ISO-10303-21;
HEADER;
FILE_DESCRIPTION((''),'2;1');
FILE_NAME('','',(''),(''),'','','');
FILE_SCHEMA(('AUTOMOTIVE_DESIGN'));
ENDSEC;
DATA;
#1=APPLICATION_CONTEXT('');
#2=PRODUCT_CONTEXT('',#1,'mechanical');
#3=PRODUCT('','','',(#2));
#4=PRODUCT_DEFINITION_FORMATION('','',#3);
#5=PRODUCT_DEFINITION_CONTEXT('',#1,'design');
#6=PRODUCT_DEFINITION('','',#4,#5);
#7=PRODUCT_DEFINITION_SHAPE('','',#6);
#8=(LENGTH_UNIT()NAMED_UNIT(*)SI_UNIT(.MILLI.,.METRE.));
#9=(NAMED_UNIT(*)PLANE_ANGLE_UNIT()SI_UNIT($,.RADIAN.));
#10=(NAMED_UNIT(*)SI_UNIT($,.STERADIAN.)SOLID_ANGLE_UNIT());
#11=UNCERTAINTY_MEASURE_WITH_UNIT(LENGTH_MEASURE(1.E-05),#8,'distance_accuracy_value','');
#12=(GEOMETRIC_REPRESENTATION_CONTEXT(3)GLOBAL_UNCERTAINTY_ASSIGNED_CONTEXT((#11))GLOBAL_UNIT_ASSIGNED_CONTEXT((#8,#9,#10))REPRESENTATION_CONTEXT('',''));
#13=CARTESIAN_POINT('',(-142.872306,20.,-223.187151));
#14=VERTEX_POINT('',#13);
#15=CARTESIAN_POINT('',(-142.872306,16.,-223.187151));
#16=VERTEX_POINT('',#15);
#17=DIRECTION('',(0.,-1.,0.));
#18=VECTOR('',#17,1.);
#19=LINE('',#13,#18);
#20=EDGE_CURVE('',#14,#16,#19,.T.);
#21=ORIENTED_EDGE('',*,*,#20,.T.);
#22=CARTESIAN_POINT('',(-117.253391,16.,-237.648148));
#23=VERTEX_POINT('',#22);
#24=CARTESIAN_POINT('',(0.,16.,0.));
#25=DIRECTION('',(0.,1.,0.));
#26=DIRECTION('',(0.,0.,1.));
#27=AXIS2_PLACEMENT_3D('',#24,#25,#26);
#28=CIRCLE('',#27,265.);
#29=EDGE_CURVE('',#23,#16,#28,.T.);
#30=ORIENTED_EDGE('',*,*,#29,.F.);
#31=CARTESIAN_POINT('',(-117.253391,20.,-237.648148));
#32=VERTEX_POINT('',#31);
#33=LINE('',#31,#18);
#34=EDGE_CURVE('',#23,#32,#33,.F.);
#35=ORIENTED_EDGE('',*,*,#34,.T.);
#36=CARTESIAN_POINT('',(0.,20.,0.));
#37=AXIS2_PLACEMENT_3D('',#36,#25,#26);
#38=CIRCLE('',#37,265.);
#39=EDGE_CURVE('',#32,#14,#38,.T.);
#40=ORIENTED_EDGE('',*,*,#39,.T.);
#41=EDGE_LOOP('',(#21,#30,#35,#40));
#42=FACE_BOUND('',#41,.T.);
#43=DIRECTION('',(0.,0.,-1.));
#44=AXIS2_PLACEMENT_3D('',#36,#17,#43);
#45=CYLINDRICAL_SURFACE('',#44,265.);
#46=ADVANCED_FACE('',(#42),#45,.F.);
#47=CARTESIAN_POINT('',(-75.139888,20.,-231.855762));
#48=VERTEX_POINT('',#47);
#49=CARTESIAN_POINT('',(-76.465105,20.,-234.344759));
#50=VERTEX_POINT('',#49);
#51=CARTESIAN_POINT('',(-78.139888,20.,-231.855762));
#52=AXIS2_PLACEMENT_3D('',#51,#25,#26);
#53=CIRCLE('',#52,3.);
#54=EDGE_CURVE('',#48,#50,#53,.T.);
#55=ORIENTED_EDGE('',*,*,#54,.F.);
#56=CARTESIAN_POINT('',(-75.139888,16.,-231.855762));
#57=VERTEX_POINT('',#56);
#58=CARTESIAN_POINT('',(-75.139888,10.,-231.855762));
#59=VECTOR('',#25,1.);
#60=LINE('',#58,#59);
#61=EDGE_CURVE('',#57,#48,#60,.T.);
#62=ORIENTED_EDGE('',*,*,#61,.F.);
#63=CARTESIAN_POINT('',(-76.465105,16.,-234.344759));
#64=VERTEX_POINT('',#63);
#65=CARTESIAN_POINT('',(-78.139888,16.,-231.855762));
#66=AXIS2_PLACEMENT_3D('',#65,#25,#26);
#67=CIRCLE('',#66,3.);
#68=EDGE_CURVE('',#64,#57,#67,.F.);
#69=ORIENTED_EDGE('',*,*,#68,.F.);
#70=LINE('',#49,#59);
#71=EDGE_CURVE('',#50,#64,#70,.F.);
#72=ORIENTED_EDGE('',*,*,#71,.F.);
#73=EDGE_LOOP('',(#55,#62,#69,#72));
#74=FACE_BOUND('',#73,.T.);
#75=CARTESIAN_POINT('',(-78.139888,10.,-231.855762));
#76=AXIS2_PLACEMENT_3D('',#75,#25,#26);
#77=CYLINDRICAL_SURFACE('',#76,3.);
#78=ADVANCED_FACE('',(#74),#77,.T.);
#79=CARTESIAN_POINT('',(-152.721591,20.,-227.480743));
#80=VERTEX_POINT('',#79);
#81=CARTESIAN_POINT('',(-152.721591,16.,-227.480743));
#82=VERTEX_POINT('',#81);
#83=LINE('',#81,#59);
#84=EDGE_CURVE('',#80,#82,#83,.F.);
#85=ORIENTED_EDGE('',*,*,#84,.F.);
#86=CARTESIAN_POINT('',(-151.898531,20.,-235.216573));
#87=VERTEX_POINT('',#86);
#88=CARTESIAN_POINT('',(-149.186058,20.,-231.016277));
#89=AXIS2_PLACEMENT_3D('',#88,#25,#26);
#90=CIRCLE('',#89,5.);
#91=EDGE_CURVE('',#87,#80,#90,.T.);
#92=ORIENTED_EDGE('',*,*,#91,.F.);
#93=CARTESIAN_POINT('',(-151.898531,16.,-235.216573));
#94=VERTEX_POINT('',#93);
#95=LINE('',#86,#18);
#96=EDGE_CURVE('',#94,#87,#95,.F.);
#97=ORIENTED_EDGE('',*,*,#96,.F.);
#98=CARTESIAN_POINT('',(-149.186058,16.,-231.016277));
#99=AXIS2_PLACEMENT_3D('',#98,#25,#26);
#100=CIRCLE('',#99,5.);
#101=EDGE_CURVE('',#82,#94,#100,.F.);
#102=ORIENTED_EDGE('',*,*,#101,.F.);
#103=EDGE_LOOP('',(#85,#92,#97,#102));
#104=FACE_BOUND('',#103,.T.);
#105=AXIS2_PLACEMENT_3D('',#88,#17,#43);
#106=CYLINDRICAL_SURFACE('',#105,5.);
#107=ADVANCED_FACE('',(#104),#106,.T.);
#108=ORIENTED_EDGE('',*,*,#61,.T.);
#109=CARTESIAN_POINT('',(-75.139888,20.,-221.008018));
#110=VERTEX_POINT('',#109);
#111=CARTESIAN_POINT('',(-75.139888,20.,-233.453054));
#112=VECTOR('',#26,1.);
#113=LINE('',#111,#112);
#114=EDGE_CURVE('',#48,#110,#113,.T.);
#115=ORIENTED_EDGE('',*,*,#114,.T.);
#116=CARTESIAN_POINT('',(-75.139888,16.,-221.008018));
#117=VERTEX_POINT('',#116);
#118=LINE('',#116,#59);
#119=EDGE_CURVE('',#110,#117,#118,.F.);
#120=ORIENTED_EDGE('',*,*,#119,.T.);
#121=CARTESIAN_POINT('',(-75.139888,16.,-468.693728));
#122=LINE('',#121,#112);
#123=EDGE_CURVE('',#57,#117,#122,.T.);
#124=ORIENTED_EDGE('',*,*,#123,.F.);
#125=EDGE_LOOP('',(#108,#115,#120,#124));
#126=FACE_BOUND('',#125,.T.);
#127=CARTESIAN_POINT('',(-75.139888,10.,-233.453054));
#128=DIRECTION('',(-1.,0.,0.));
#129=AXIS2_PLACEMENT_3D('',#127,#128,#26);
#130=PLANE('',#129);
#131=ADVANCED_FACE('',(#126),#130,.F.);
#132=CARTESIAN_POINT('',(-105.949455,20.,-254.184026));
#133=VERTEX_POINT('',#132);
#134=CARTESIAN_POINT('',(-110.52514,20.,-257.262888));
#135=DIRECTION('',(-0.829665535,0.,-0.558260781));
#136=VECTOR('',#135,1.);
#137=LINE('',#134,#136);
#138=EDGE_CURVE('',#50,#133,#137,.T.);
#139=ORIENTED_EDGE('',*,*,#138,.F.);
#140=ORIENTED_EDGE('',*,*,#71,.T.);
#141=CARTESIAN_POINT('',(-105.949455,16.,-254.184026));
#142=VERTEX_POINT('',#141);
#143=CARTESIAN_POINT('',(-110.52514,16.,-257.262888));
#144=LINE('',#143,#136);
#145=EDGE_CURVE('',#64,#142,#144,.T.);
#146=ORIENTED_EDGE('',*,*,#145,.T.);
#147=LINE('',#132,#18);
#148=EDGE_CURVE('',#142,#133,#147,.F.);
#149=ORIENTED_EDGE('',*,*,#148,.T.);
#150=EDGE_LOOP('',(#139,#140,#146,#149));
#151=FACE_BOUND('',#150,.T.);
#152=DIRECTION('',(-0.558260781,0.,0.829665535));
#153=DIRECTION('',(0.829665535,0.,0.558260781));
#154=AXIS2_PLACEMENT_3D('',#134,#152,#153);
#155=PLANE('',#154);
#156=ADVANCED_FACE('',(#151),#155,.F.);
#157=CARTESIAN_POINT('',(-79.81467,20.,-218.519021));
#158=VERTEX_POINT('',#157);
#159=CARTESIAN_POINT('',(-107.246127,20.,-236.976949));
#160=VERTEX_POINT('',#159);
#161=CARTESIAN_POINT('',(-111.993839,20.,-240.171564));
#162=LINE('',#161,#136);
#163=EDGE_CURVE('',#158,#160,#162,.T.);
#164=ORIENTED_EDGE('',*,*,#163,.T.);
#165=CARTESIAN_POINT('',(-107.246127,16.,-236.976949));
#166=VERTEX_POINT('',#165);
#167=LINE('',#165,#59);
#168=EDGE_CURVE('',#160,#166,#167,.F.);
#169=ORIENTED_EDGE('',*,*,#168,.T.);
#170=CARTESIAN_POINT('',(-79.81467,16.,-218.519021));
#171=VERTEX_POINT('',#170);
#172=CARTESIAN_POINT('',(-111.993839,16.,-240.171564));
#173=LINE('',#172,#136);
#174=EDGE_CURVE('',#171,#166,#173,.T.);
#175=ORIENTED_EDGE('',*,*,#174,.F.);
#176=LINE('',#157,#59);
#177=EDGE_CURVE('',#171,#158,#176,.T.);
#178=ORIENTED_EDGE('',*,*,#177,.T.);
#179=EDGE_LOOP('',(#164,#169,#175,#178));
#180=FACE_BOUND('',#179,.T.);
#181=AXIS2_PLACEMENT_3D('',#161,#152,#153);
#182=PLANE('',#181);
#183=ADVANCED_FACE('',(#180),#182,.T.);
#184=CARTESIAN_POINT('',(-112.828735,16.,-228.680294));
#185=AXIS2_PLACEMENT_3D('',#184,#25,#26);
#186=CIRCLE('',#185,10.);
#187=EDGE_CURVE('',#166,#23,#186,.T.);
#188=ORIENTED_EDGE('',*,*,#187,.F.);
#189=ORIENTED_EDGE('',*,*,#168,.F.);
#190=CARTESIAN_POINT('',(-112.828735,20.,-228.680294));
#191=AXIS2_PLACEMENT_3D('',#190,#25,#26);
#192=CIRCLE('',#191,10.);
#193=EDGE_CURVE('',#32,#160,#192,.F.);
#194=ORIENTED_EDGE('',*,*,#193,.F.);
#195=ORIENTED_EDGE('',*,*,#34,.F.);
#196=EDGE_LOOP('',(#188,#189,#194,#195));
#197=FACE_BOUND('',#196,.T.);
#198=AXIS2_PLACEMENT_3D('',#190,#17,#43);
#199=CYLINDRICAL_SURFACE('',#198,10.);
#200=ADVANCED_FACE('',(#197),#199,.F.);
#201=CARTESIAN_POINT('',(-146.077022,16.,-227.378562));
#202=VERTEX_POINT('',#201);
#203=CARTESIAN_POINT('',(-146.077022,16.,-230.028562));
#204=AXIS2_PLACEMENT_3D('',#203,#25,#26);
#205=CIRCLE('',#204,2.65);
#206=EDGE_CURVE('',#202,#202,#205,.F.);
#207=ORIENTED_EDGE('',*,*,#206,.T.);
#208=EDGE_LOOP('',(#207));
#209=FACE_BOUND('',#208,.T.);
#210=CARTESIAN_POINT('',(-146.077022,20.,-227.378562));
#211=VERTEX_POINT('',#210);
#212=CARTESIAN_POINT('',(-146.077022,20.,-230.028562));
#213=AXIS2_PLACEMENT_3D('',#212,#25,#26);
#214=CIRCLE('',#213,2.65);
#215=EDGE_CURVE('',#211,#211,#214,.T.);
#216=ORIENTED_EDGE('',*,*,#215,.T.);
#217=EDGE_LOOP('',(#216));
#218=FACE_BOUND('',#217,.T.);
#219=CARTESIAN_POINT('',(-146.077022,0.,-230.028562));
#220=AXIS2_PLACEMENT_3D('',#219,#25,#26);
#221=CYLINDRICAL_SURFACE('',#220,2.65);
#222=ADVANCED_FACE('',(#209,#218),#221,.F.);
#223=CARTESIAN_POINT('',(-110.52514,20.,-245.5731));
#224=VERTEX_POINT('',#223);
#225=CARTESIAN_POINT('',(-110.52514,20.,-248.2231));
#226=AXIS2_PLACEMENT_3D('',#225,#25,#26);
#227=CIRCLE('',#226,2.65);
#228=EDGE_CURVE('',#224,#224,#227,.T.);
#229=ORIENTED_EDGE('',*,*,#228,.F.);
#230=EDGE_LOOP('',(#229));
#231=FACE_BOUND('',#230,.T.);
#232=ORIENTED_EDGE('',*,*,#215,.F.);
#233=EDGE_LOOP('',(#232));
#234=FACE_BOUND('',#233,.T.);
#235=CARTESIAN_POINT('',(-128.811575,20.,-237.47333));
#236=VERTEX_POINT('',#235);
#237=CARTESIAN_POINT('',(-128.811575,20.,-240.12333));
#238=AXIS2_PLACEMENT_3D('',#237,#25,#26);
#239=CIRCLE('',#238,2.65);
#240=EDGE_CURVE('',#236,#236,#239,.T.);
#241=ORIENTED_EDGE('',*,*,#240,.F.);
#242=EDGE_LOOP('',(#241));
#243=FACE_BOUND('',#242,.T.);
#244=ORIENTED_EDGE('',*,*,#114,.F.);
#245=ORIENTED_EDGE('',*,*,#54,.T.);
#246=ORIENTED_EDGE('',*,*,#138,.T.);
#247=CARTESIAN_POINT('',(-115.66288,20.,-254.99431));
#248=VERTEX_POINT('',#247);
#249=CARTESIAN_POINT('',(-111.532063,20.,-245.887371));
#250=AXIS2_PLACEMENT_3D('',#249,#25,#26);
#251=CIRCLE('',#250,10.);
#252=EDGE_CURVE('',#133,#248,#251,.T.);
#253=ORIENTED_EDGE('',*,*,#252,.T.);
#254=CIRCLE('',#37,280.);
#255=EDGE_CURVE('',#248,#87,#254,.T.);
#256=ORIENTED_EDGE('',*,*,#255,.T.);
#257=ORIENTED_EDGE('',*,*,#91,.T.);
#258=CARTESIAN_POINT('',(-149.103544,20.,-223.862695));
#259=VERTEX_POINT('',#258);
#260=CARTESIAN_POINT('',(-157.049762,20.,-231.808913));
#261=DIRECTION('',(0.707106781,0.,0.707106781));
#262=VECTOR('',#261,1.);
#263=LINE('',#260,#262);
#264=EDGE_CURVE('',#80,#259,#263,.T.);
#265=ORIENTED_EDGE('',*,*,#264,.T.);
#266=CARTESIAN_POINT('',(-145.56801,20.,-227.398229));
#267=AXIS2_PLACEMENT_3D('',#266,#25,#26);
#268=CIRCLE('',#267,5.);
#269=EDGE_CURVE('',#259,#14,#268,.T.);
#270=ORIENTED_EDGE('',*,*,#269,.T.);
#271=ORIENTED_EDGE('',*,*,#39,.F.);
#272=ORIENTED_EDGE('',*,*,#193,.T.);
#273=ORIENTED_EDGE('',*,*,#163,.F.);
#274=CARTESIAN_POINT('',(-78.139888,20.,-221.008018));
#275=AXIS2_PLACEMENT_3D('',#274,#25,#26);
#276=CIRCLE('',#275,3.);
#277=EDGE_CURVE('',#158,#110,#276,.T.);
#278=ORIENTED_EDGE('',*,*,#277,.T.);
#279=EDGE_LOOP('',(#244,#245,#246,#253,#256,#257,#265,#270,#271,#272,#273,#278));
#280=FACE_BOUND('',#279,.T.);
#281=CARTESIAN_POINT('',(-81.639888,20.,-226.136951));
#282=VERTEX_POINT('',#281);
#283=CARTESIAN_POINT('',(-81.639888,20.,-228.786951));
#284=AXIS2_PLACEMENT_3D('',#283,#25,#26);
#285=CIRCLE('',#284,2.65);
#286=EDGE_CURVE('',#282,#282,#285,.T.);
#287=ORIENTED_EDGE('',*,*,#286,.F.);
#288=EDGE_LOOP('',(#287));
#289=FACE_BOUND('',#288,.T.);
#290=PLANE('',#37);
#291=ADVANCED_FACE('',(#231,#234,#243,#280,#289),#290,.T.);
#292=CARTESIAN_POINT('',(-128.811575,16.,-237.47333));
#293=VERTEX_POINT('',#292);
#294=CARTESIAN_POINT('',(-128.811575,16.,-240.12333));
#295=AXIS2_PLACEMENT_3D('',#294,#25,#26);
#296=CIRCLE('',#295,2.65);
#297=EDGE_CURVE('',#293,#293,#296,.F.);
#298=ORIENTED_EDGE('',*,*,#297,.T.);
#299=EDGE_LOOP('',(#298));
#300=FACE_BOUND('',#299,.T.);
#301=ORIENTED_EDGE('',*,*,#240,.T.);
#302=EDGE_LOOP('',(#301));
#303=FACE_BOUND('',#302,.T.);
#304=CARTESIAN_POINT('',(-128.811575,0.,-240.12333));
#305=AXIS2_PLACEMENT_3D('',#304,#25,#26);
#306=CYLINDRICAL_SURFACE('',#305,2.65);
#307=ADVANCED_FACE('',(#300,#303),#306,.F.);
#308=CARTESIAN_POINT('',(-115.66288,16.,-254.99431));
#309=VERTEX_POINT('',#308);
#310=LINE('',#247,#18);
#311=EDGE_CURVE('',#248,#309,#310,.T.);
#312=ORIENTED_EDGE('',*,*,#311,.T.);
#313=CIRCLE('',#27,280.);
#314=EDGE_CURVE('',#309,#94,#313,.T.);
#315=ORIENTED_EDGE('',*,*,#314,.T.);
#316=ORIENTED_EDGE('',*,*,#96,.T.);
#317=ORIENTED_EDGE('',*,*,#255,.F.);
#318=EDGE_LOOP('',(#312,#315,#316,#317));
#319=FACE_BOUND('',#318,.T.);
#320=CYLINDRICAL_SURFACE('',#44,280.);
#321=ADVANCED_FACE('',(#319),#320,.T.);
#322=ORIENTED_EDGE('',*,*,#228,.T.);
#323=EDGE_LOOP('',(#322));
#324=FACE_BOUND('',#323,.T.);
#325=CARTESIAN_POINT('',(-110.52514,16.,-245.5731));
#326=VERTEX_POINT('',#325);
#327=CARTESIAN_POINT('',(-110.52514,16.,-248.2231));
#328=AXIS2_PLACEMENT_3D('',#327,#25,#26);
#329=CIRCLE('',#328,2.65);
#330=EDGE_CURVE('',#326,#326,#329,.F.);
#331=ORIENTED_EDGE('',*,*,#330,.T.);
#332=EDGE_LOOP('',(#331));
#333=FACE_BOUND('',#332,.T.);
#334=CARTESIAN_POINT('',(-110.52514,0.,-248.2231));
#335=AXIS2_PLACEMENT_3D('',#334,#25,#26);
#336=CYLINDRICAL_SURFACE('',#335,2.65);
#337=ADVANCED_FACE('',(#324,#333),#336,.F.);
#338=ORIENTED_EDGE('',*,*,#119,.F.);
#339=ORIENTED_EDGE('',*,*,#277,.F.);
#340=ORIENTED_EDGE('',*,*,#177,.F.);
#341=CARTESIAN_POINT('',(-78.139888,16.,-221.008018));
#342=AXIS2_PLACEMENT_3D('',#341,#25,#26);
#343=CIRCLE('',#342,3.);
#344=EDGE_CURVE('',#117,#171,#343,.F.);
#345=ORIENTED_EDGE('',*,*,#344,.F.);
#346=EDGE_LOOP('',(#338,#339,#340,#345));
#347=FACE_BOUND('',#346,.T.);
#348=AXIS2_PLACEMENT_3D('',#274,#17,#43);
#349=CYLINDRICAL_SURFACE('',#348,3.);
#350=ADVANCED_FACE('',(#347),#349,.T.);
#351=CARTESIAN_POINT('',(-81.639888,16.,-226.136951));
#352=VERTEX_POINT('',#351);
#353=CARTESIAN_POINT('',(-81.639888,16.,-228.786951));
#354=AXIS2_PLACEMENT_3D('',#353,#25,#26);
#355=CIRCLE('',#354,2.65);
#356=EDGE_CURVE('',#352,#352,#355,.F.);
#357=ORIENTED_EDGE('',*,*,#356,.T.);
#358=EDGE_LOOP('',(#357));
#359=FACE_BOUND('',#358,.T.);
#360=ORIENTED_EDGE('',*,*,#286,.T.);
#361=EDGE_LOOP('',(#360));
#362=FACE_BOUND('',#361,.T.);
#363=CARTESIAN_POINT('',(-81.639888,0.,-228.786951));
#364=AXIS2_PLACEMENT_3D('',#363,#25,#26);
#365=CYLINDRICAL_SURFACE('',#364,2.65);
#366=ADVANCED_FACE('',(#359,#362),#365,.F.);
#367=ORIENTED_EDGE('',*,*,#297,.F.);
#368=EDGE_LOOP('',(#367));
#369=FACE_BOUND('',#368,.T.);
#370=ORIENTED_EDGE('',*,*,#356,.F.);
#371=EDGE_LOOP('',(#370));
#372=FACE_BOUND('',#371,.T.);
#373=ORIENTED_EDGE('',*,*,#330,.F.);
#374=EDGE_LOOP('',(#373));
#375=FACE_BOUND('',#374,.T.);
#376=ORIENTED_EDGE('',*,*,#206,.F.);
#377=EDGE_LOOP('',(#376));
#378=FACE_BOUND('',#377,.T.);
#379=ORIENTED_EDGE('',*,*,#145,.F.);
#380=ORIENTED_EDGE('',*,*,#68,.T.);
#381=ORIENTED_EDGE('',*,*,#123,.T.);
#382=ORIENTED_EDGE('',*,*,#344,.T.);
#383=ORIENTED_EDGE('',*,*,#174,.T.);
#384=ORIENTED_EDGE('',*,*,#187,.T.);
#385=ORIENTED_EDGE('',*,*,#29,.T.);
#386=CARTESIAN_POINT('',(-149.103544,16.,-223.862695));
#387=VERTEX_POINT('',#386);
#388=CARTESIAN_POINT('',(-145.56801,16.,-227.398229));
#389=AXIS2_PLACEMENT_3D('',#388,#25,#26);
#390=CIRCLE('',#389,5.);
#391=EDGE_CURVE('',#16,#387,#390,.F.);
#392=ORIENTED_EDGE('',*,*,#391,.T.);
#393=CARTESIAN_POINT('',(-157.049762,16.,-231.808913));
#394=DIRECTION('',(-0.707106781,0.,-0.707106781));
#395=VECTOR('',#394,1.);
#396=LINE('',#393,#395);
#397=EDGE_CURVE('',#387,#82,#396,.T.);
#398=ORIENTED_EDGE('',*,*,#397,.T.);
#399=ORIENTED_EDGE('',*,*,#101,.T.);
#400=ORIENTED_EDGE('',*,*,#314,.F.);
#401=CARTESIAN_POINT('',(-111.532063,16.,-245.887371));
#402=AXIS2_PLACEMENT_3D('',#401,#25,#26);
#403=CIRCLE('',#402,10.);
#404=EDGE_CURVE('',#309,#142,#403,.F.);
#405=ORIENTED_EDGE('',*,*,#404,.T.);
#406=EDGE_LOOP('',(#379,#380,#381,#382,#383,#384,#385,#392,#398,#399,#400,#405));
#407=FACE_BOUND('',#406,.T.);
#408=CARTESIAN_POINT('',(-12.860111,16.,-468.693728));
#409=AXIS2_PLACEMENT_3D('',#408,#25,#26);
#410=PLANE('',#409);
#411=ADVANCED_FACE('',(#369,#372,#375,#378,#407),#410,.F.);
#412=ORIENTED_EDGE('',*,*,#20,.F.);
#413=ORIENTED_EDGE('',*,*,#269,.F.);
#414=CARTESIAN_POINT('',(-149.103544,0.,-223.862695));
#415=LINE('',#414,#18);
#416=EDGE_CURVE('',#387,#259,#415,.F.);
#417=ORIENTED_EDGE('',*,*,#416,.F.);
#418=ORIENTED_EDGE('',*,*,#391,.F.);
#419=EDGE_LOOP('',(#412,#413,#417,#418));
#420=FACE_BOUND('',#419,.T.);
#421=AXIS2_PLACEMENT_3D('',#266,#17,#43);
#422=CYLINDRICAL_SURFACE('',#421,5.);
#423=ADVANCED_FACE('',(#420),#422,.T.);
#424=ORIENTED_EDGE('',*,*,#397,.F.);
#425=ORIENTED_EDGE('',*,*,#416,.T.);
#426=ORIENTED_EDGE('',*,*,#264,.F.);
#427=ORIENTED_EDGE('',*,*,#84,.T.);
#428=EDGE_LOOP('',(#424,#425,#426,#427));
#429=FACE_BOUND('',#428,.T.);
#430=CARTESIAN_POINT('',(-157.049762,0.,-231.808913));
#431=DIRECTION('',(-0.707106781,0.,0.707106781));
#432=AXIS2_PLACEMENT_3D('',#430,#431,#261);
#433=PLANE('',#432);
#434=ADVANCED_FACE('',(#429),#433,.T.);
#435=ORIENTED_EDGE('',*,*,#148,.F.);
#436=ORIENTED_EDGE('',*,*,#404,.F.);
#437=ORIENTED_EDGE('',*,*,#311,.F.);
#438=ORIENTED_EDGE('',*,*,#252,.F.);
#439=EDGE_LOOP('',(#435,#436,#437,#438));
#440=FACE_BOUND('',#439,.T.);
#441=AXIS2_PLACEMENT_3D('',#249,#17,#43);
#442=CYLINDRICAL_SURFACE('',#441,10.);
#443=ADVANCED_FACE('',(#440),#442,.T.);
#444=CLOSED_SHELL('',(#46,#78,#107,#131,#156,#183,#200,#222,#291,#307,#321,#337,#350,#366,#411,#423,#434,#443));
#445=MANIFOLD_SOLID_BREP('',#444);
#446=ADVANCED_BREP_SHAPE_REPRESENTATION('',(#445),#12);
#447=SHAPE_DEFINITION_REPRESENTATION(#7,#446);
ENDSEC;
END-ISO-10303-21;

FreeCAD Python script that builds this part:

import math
import FreeCAD as App
import Part
import Sketcher

V = App.Vector
Q = App.Units.Quantity


def edges_at(feature, points):
    """Names of the edges that pass closest to the given points."""
    edges = feature.Shape.Edges
    near = lambda p: min(range(len(edges)), key=lambda i: edges[i].distToShape(Part.Vertex(*p))[0])
    return sorted({f"Edge{near(p) + 1}" for p in points})

doc = App.newDocument("Part")
body = doc.addObject("PartDesign::Body", "Body")

# Sketch on XZ plane
sketch1 = body.newObject("Sketcher::SketchObject", "Sketch")
sketch1.AttachmentSupport = (doc.getObject("XZ_Plane"), [""])
sketch1.MapMode = "FlatFace"
sketch1.addGeometry([
    Part.Circle(V(0, 0, 0), V(0, 0, 1), 275),
    Part.Circle(V(0, 0, 0), V(0, 0, 1), 255),
], False)
sketch1.addConstraint([
    Sketcher.Constraint("Coincident", 0, 3, -1, 1),
    Sketcher.Constraint("Coincident", 1, 3, -1, 1),
    Sketcher.Constraint("Diameter", 0, Q("550 mm")),
    Sketcher.Constraint("Diameter", 1, Q("510 mm")),
])
pad1 = body.newObject("PartDesign::Pad", "Pad")
pad1.Profile = sketch1
pad1.Length = 10
pad1.Reversed = True

# Sketch on an angled plane
sketch2 = body.newObject("Sketcher::SketchObject", "Sketch001")
sketch2.Placement = App.Placement(V(76.336747, 0, -113.448715), App.Rotation(V(0.829665535, 0, 0.558260781), V(0, 1, 0), V(-0.558260781, 0, 0.829665535), "ZXY"))
sketch2.addGeometry([
    Part.LineSegment(V(-275, 10, 0), V(-275, -10, 0)),
    Part.LineSegment(V(-275, -10, 0), V(275, -10, 0)),
    Part.LineSegment(V(275, -10, 0), V(275, 10, 0)),
    Part.LineSegment(V(275, 10, 0), V(-275, 10, 0)),
], False)
sketch2.addConstraint([
    Sketcher.Constraint("Coincident", 0, 2, 1, 1),
    Sketcher.Constraint("Coincident", 1, 2, 2, 1),
    Sketcher.Constraint("Coincident", 2, 2, 3, 1),
    Sketcher.Constraint("Coincident", 3, 2, 0, 1),
    Sketcher.Constraint("Vertical", 0),
    Sketcher.Constraint("Horizontal", 1),
    Sketcher.Constraint("Vertical", 2),
    Sketcher.Constraint("Horizontal", 3),
    Sketcher.Constraint("Symmetric", 0, 2, 2, 2, -1, 1),
    Sketcher.Constraint("DistanceX", 1, 1, 1, 2, Q("550 mm")),
    Sketcher.Constraint("DistanceY", 0, 2, 0, 1, Q("20 mm")),
])
pocket1 = body.newObject("PartDesign::Pocket", "Pocket")
pocket1.Profile = sketch2
pocket1.Type = "ThroughAll"
pocket1.Midplane = True
body2 = doc.addObject("PartDesign::Body", "Body001")

# Sketch on XZ plane
sketch3 = body2.newObject("Sketcher::SketchObject", "Sketch002")
sketch3.AttachmentSupport = (doc.getObject("XZ_Plane001"), [""])
sketch3.MapMode = "FlatFace"
sketch3.AttachmentOffset = App.Placement(V(0, 0, -10), App.Rotation())
sketch3.addGeometry([
    Part.LineSegment(V(-25.423255, -200, 0), V(-110.52514, -257.262888, 0)),  # 0
    Part.ArcOfCircle(Part.Circle(V(0, 0, 0), V(0, 0, 1), 280), math.radians(-156.750699), math.radians(-113.249301)),  # 1
    Part.LineSegment(V(-257.262888, -110.52514, 0), V(-200, -25.423255, 0)),  # 2
    Part.LineSegment(V(-200, -25.423255, 0), V(-200, 25.423255, 0)),  # 3
    Part.LineSegment(V(-200, 25.423255, 0), V(-257.262888, 110.52514, 0)),  # 4
    Part.ArcOfCircle(Part.Circle(V(0, 0, 0), V(0, 0, 1), 280), math.radians(113.249301), math.radians(156.750699)),  # 5
    Part.LineSegment(V(-110.52514, 257.262888, 0), V(-25.423255, 200, 0)),  # 6
    Part.LineSegment(V(-25.423255, 200, 0), V(25.423255, 200, 0)),  # 7
    Part.LineSegment(V(25.423255, 200, 0), V(110.52514, 257.262888, 0)),  # 8
    Part.ArcOfCircle(Part.Circle(V(0, 0, 0), V(0, 0, 1), 280), math.radians(23.249301), math.radians(66.750699)),  # 9
    Part.LineSegment(V(257.262888, 110.52514, 0), V(200, 25.423255, 0)),  # 10
    Part.LineSegment(V(200, 25.423255, 0), V(200, -25.423255, 0)),  # 11
    Part.LineSegment(V(200, -25.423255, 0), V(257.262888, -110.52514, 0)),  # 12
    Part.ArcOfCircle(Part.Circle(V(0, 0, 0), V(0, 0, 1), 280), math.radians(-66.750699), math.radians(-23.249301)),  # 13
    Part.LineSegment(V(110.52514, -257.262888, 0), V(25.423255, -200, 0)),  # 14
    Part.LineSegment(V(25.423255, -200, 0), V(-25.423255, -200, 0)),  # 15
    Part.LineSegment(V(30, -185, 0), V(111.993839, -240.171564, 0)),  # 16
    Part.ArcOfCircle(Part.Circle(V(0, 0, 0), V(0, 0, 1), 265), math.radians(-65), math.radians(-25)),  # 17
    Part.LineSegment(V(240.171564, -111.993839, 0), V(185, -30, 0)),  # 18
    Part.LineSegment(V(185, -30, 0), V(185, 30, 0)),  # 19
    Part.LineSegment(V(185, 30, 0), V(240.171564, 111.993839, 0)),  # 20
    Part.ArcOfCircle(Part.Circle(V(0, 0, 0), V(0, 0, 1), 265), math.radians(25), math.radians(65)),  # 21
    Part.LineSegment(V(111.993839, 240.171564, 0), V(30, 185, 0)),  # 22
    Part.LineSegment(V(30, 185, 0), V(-30, 185, 0)),  # 23
    Part.LineSegment(V(-30, 185, 0), V(-111.993839, 240.171564, 0)),  # 24
    Part.ArcOfCircle(Part.Circle(V(0, 0, 0), V(0, 0, 1), 265), math.radians(115), math.radians(155)),  # 25
    Part.LineSegment(V(-240.171564, 111.993839, 0), V(-185, 30, 0)),  # 26
    Part.LineSegment(V(-185, 30, 0), V(-185, -30, 0)),  # 27
    Part.LineSegment(V(-185, -30, 0), V(-240.171564, -111.993839, 0)),  # 28
    Part.ArcOfCircle(Part.Circle(V(0, 0, 0), V(0, 0, 1), 265), math.radians(-155), math.radians(-115)),  # 29
    Part.LineSegment(V(-111.993839, -240.171564, 0), V(-30, -185, 0)),  # 30
    Part.LineSegment(V(-30, -185, 0), V(30, -185, 0)),  # 31
], False)
sketch3.addConstraint([
    Sketcher.Constraint("Coincident", 0, 2, 1, 2),
    Sketcher.Constraint("Coincident", 1, 1, 2, 1),
    Sketcher.Constraint("Coincident", 2, 2, 3, 1),
    Sketcher.Constraint("Coincident", 3, 2, 4, 1),
    Sketcher.Constraint("Coincident", 4, 2, 5, 2),
    Sketcher.Constraint("Coincident", 5, 1, 6, 1),
    Sketcher.Constraint("Coincident", 6, 2, 7, 1),
    Sketcher.Constraint("Coincident", 7, 2, 8, 1),
    Sketcher.Constraint("Coincident", 8, 2, 9, 2),
    Sketcher.Constraint("Coincident", 9, 1, 10, 1),
    Sketcher.Constraint("Coincident", 10, 2, 11, 1),
    Sketcher.Constraint("Coincident", 11, 2, 12, 1),
    Sketcher.Constraint("Coincident", 12, 2, 13, 2),
    Sketcher.Constraint("Coincident", 13, 1, 14, 1),
    Sketcher.Constraint("Coincident", 14, 2, 15, 1),
    Sketcher.Constraint("Coincident", 15, 2, 0, 1),
    Sketcher.Constraint("Coincident", 16, 2, 17, 1),
    Sketcher.Constraint("Coincident", 17, 2, 18, 1),
    Sketcher.Constraint("Coincident", 18, 2, 19, 1),
    Sketcher.Constraint("Coincident", 19, 2, 20, 1),
    Sketcher.Constraint("Coincident", 20, 2, 21, 1),
    Sketcher.Constraint("Coincident", 21, 2, 22, 1),
    Sketcher.Constraint("Coincident", 22, 2, 23, 1),
    Sketcher.Constraint("Coincident", 23, 2, 24, 1),
    Sketcher.Constraint("Coincident", 24, 2, 25, 1),
    Sketcher.Constraint("Coincident", 25, 2, 26, 1),
    Sketcher.Constraint("Coincident", 26, 2, 27, 1),
    Sketcher.Constraint("Coincident", 27, 2, 28, 1),
    Sketcher.Constraint("Coincident", 28, 2, 29, 1),
    Sketcher.Constraint("Coincident", 29, 2, 30, 1),
    Sketcher.Constraint("Coincident", 30, 2, 31, 1),
    Sketcher.Constraint("Coincident", 31, 2, 16, 1),
    Sketcher.Constraint("Vertical", 3),
    Sketcher.Constraint("Horizontal", 7),
    Sketcher.Constraint("Vertical", 11),
    Sketcher.Constraint("Horizontal", 15),
    Sketcher.Constraint("Vertical", 19),
    Sketcher.Constraint("Horizontal", 23),
    Sketcher.Constraint("Vertical", 27),
    Sketcher.Constraint("Horizontal", 31),
    Sketcher.Constraint("Coincident", 1, 3, -1, 1),
    Sketcher.Constraint("Coincident", 5, 3, -1, 1),
    Sketcher.Constraint("Coincident", 9, 3, -1, 1),
    Sketcher.Constraint("Coincident", 13, 3, -1, 1),
    Sketcher.Constraint("Coincident", 17, 3, -1, 1),
    Sketcher.Constraint("Coincident", 21, 3, -1, 1),
    Sketcher.Constraint("Coincident", 25, 3, -1, 1),
    Sketcher.Constraint("Coincident", 29, 3, -1, 1),
    Sketcher.Constraint("Equal", 1, 5),
    Sketcher.Constraint("Equal", 5, 9),
    Sketcher.Constraint("Equal", 9, 13),
    Sketcher.Constraint("Equal", 17, 21),
    Sketcher.Constraint("Equal", 21, 25),
    Sketcher.Constraint("Equal", 25, 29),
    Sketcher.Constraint("Symmetric", 2, 2, 10, 2, -1, 1),
    Sketcher.Constraint("Symmetric", 6, 2, 14, 2, -1, 1),
    Sketcher.Constraint("Symmetric", 18, 2, 26, 2, -1, 1),
    Sketcher.Constraint("Symmetric", 22, 2, 30, 2, -1, 1),
    Sketcher.Constraint("Perpendicular", 0, 4),
    Sketcher.Constraint("Perpendicular", 2, 6),
    Sketcher.Constraint("Perpendicular", 4, 8),
    Sketcher.Constraint("Perpendicular", 6, 10),
    Sketcher.Constraint("Perpendicular", 8, 12),
    Sketcher.Constraint("Perpendicular", 10, 14),
    Sketcher.Constraint("Parallel", 14, 16),
    Sketcher.Constraint("Parallel", 12, 18),
    Sketcher.Constraint("Perpendicular", 16, 20),
    Sketcher.Constraint("Perpendicular", 18, 22),
    Sketcher.Constraint("Perpendicular", 20, 24),
    Sketcher.Constraint("Perpendicular", 22, 26),
    Sketcher.Constraint("Perpendicular", 24, 28),
    Sketcher.Constraint("Perpendicular", 26, 30),
    Sketcher.Constraint("Horizontal", 5, 1, 8, 2),
    Sketcher.Constraint("Horizontal", 4, 2, 9, 1),
    Sketcher.Constraint("Horizontal", 3, 2, 10, 2),
    Sketcher.Constraint("Horizontal", 2, 2, 11, 2),
    Sketcher.Constraint("Horizontal", 19, 2, 26, 2),
    Sketcher.Constraint("Horizontal", 18, 2, 27, 2),
    Sketcher.Constraint("Vertical", 6, 2, 15, 2),
    Sketcher.Constraint("Vertical", 23, 2, 30, 2),
    Sketcher.Constraint("Vertical", 22, 2, 31, 2),
    Sketcher.Constraint("Equal", 15, 3),
    Sketcher.Constraint("Equal", 31, 19),
    Sketcher.Constraint("Equal", 0, 2),
    Sketcher.Constraint("Equal", 16, 18),
    Sketcher.Constraint("Radius", 1, Q("280 mm")),
    Sketcher.Constraint("Radius", 17, Q("265 mm")),
    Sketcher.Constraint("DistanceX", 23, 2, 23, 1, Q("60 mm")),
    Sketcher.Constraint("DistanceX", 2, 2, -1, 1, Q("200 mm")),
    Sketcher.Constraint("DistanceX", -1, 1, 18, 2, Q("185 mm")),
    Sketcher.Constraint("DistanceX", 7, 1, 7, 2, Q("50.846511 mm")),
    Sketcher.Constraint("DistanceX", 0, 2, -1, 1, Q("110.52514 mm")),
])
pad2 = body2.newObject("PartDesign::Pad", "Pad001")
pad2.Profile = sketch3
pad2.Length = 10
pad2.Reversed = True

# Sketch on XZ plane
sketch4 = body2.newObject("Sketcher::SketchObject", "Sketch003")
sketch4.AttachmentSupport = (doc.getObject("XZ_Plane001"), [""])
sketch4.MapMode = "FlatFace"
sketch4.AttachmentOffset = App.Placement(V(0, 0, -20), App.Rotation())
sketch4.addGeometry([
    Part.Circle(V(-10, -192.5, 0), V(0, 0, 1), 2.65),  # 0
    Part.Circle(V(10, -192.5, 0), V(0, 0, 1), 2.65),  # 1
    Part.Circle(V(-10, 192.5, 0), V(0, 0, 1), 2.65),  # 2
    Part.Circle(V(10, 192.5, 0), V(0, 0, 1), 2.65),  # 3
    Part.Circle(V(192.5, -10, 0), V(0, 0, 1), 2.65),  # 4
    Part.Circle(V(192.5, 10, 0), V(0, 0, 1), 2.65),  # 5
    Part.Circle(V(-192.5, -10, 0), V(0, 0, 1), 2.65),  # 6
    Part.Circle(V(-192.5, 10, 0), V(0, 0, 1), 2.65),  # 7
    Part.Circle(V(-110.52514, -248.2231, 0), V(0, 0, 1), 2.65),  # 8
    Part.Circle(V(-27.711628, -192.5, 0), V(0, 0, 1), 2.65),  # 9
    Part.Circle(V(-44.304938, -203.665216, 0), V(0, 0, 1), 2.65),  # 10
    Part.Circle(V(-56.749921, -212.039127, 0), V(0, 0, 1), 2.65),  # 11
    Part.Circle(V(-69.194904, -220.413039, 0), V(0, 0, 1), 2.65),  # 12
    Part.Circle(V(-81.639888, -228.786951, 0), V(0, 0, 1), 2.65),  # 13
    Part.Circle(V(-146.077022, -230.028562, 0), V(0, 0, 1), 2.65),  # 14
    Part.Circle(V(-164.41552, -217.29973, 0), V(0, 0, 1), 2.65),  # 15
    Part.Circle(V(-183.638938, -201.316607, 0), V(0, 0, 1), 2.65),  # 16
    Part.Circle(V(-201.316607, -183.638938, 0), V(0, 0, 1), 2.65),  # 17
    Part.Circle(V(-217.29973, -164.41552, 0), V(0, 0, 1), 2.65),  # 18
    Part.Circle(V(-230.028562, -146.077022, 0), V(0, 0, 1), 2.65),  # 19
    Part.Circle(V(-128.811575, -240.12333, 0), V(0, 0, 1), 2.65),  # 20
    Part.Circle(V(-240.12333, -128.811575, 0), V(0, 0, 1), 2.65),  # 21
    Part.Circle(V(-228.786951, -81.639888, 0), V(0, 0, 1), 2.65),  # 22
    Part.Circle(V(-220.413039, -69.194904, 0), V(0, 0, 1), 2.65),  # 23
    Part.Circle(V(-212.039127, -56.749921, 0), V(0, 0, 1), 2.65),  # 24
    Part.Circle(V(-203.665216, -44.304938, 0), V(0, 0, 1), 2.65),  # 25
    Part.Circle(V(-192.5, -27.711628, 0), V(0, 0, 1), 2.65),  # 26
    Part.Circle(V(-248.2231, -110.52514, 0), V(0, 0, 1), 2.65),  # 27
    Part.Circle(V(192.5, -27.711628, 0), V(0, 0, 1), 2.65),  # 28
    Part.Circle(V(248.2231, -110.52514, 0), V(0, 0, 1), 2.65),  # 29
    Part.Circle(V(203.665216, -44.304938, 0), V(0, 0, 1), 2.65),  # 30
    Part.Circle(V(212.039127, -56.749921, 0), V(0, 0, 1), 2.65),  # 31
    Part.Circle(V(220.413039, -69.194904, 0), V(0, 0, 1), 2.65),  # 32
    Part.Circle(V(228.786951, -81.639888, 0), V(0, 0, 1), 2.65),  # 33
    Part.Circle(V(240.12333, -128.811575, 0), V(0, 0, 1), 2.65),  # 34
    Part.Circle(V(230.028562, -146.077022, 0), V(0, 0, 1), 2.65),  # 35
    Part.Circle(V(128.811575, -240.12333, 0), V(0, 0, 1), 2.65),  # 36
    Part.Circle(V(201.316607, -183.638938, 0), V(0, 0, 1), 2.65),  # 37
    Part.Circle(V(183.638938, -201.316607, 0), V(0, 0, 1), 2.65),  # 38
    Part.Circle(V(164.41552, -217.29973, 0), V(0, 0, 1), 2.65),  # 39
    Part.Circle(V(146.077022, -230.028562, 0), V(0, 0, 1), 2.65),  # 40
    Part.Circle(V(81.639888, -228.786951, 0), V(0, 0, 1), 2.65),  # 41
    Part.Circle(V(69.194904, -220.413039, 0), V(0, 0, 1), 2.65),  # 42
    Part.Circle(V(56.749921, -212.039127, 0), V(0, 0, 1), 2.65),  # 43
    Part.Circle(V(44.304938, -203.665216, 0), V(0, 0, 1), 2.65),  # 44
    Part.Circle(V(110.52514, -248.2231, 0), V(0, 0, 1), 2.65),  # 45
    Part.Circle(V(27.711628, -192.5, 0), V(0, 0, 1), 2.65),  # 46
    Part.Circle(V(217.29973, -164.41552, 0), V(0, 0, 1), 2.65),  # 47
], False)
sketch4.addConstraint([
    Sketcher.Constraint("Equal", 0, 1),
    Sketcher.Constraint("Equal", 1, 2),
    Sketcher.Constraint("Equal", 2, 3),
    Sketcher.Constraint("Equal", 3, 4),
    Sketcher.Constraint("Equal", 4, 5),
    Sketcher.Constraint("Equal", 5, 6),
    Sketcher.Constraint("Equal", 6, 7),
    Sketcher.Constraint("Equal", 7, 8),
    Sketcher.Constraint("Equal", 8, 9),
    Sketcher.Constraint("Equal", 9, 10),
    Sketcher.Constraint("Equal", 10, 11),
    Sketcher.Constraint("Equal", 11, 12),
    Sketcher.Constraint("Equal", 12, 13),
    Sketcher.Constraint("Equal", 13, 14),
    Sketcher.Constraint("Equal", 14, 15),
    Sketcher.Constraint("Equal", 15, 16),
    Sketcher.Constraint("Equal", 16, 17),
    Sketcher.Constraint("Equal", 17, 18),
    Sketcher.Constraint("Equal", 18, 19),
    Sketcher.Constraint("Equal", 19, 20),
    Sketcher.Constraint("Equal", 20, 21),
    Sketcher.Constraint("Equal", 21, 22),
    Sketcher.Constraint("Equal", 22, 23),
    Sketcher.Constraint("Equal", 23, 24),
    Sketcher.Constraint("Equal", 24, 25),
    Sketcher.Constraint("Equal", 25, 26),
    Sketcher.Constraint("Equal", 26, 27),
    Sketcher.Constraint("Equal", 27, 28),
    Sketcher.Constraint("Equal", 28, 29),
    Sketcher.Constraint("Equal", 29, 30),
    Sketcher.Constraint("Equal", 30, 31),
    Sketcher.Constraint("Equal", 31, 32),
    Sketcher.Constraint("Equal", 32, 33),
    Sketcher.Constraint("Equal", 33, 34),
    Sketcher.Constraint("Equal", 34, 35),
    Sketcher.Constraint("Equal", 35, 36),
    Sketcher.Constraint("Equal", 36, 37),
    Sketcher.Constraint("Equal", 37, 38),
    Sketcher.Constraint("Equal", 38, 39),
    Sketcher.Constraint("Equal", 39, 40),
    Sketcher.Constraint("Equal", 40, 41),
    Sketcher.Constraint("Equal", 41, 42),
    Sketcher.Constraint("Equal", 42, 43),
    Sketcher.Constraint("Equal", 43, 44),
    Sketcher.Constraint("Equal", 44, 45),
    Sketcher.Constraint("Equal", 45, 46),
    Sketcher.Constraint("Equal", 46, 47),
    Sketcher.Constraint("Symmetric", 1, 3, 2, 3, -1, 1),
    Sketcher.Constraint("Symmetric", 0, 3, 3, 3, -1, 1),
    Sketcher.Constraint("Symmetric", 5, 3, 6, 3, -1, 1),
    Sketcher.Constraint("Symmetric", 4, 3, 7, 3, -1, 1),
    Sketcher.Constraint("Symmetric", 0, 3, 1, 3, -2),
    Sketcher.Constraint("Symmetric", 4, 3, 6, 3, -2),
    Sketcher.Constraint("Symmetric", 26, 3, 28, 3, -2),
    Sketcher.Constraint("Symmetric", 27, 3, 29, 3, -2),
    Sketcher.Constraint("Symmetric", 25, 3, 30, 3, -2),
    Sketcher.Constraint("Symmetric", 24, 3, 31, 3, -2),
    Sketcher.Constraint("Symmetric", 23, 3, 32, 3, -2),
    Sketcher.Constraint("Symmetric", 22, 3, 33, 3, -2),
    Sketcher.Constraint("Symmetric", 21, 3, 34, 3, -2),
    Sketcher.Constraint("Symmetric", 19, 3, 35, 3, -2),
    Sketcher.Constraint("Symmetric", 20, 3, 36, 3, -2),
    Sketcher.Constraint("Symmetric", 17, 3, 37, 3, -2),
    Sketcher.Constraint("Symmetric", 16, 3, 38, 3, -2),
    Sketcher.Constraint("Symmetric", 15, 3, 39, 3, -2),
    Sketcher.Constraint("Symmetric", 14, 3, 40, 3, -2),
    Sketcher.Constraint("Symmetric", 13, 3, 41, 3, -2),
    Sketcher.Constraint("Symmetric", 12, 3, 42, 3, -2),
    Sketcher.Constraint("Symmetric", 11, 3, 43, 3, -2),
    Sketcher.Constraint("Symmetric", 10, 3, 44, 3, -2),
    Sketcher.Constraint("Symmetric", 8, 3, 45, 3, -2),
    Sketcher.Constraint("Symmetric", 9, 3, 46, 3, -2),
    Sketcher.Constraint("Symmetric", 18, 3, 47, 3, -2),
    Sketcher.Constraint("Horizontal", 1, 3, 9, 3),
    Sketcher.Constraint("Vertical", 7, 3, 26, 3),
    Sketcher.Constraint("Diameter", 0, Q("5.3 mm")),
    Sketcher.Constraint("DistanceX", 0, 3, -1, 1, Q("10 mm")),
    Sketcher.Constraint("DistanceY", 4, 3, -1, 1, Q("10 mm")),
    Sketcher.Constraint("DistanceY", 0, 3, 2, 3, Q("385 mm")),
    Sketcher.Constraint("DistanceX", 6, 3, 4, 3, Q("385 mm")),
    Sketcher.Constraint("DistanceY", 8, 3, -1, 1, Q("248.2231 mm")),
    Sketcher.Constraint("DistanceX", 27, 3, -1, 1, Q("248.2231 mm")),
    Sketcher.Constraint("DistanceX", 8, 3, 10, 3, Q("66.220201 mm")),
    Sketcher.Constraint("DistanceX", 14, 3, 11, 3, Q("89.327101 mm")),
    Sketcher.Constraint("DistanceX", 15, 3, 11, 3, Q("107.665598 mm")),
    Sketcher.Constraint("DistanceY", 20, 3, 15, 3, Q("22.823601 mm")),
    Sketcher.Constraint("DistanceX", 21, 3, 18, 3, Q("22.823601 mm")),
    Sketcher.Constraint("DistanceY", 29, 3, 30, 3, Q("66.220201 mm")),
    Sketcher.Constraint("DistanceY", 35, 3, 31, 3, Q("89.327101 mm")),
    Sketcher.Constraint("DistanceX", 8, 3, -1, 1, Q("110.52514 mm")),
    Sketcher.Constraint("DistanceX", 11, 3, -1, 1, Q("56.749921 mm")),
    Sketcher.Constraint("DistanceY", 12, 3, -1, 1, Q("220.413039 mm")),
    Sketcher.Constraint("DistanceY", 13, 3, -1, 1, Q("228.786951 mm")),
    Sketcher.Constraint("DistanceY", 14, 3, -1, 1, Q("230.028562 mm")),
    Sketcher.Constraint("DistanceY", 15, 3, -1, 1, Q("217.29973 mm")),
    Sketcher.Constraint("DistanceX", 18, 3, -1, 1, Q("217.29973 mm")),
    Sketcher.Constraint("DistanceY", 18, 3, -1, 1, Q("164.41552 mm")),
    Sketcher.Constraint("DistanceX", 19, 3, -1, 1, Q("230.028562 mm")),
    Sketcher.Constraint("DistanceX", 22, 3, -1, 1, Q("228.786951 mm")),
    Sketcher.Constraint("DistanceX", 23, 3, -1, 1, Q("220.413039 mm")),
    Sketcher.Constraint("DistanceY", 24, 3, -1, 1, Q("56.749921 mm")),
    Sketcher.Constraint("DistanceY", 25, 3, -1, 1, Q("44.304938 mm")),
    Sketcher.Constraint("DistanceX", 10, 3, 9, 3, Q("16.593311 mm")),
    Sketcher.Constraint("DistanceY", 11, 3, 10, 3, Q("8.373912 mm")),
    Sketcher.Constraint("DistanceY", 12, 3, 11, 3, Q("8.373912 mm")),
    Sketcher.Constraint("DistanceX", 13, 3, 10, 3, Q("37.334949 mm")),
    Sketcher.Constraint("DistanceX", 16, 3, 13, 3, Q("101.99905 mm")),
    Sketcher.Constraint("DistanceY", 12, 3, 16, 3, Q("19.096432 mm")),
    Sketcher.Constraint("DistanceX", 17, 3, 16, 3, Q("17.67767 mm")),
    Sketcher.Constraint("DistanceY", 16, 3, 17, 3, Q("17.67767 mm")),
    Sketcher.Constraint("DistanceX", 20, 3, 12, 3, Q("59.616671 mm")),
    Sketcher.Constraint("DistanceY", 16, 3, 21, 3, Q("72.505032 mm")),
    Sketcher.Constraint("DistanceY", 21, 3, 23, 3, Q("59.616671 mm")),
    Sketcher.Constraint("DistanceX", 23, 3, 24, 3, Q("8.373912 mm")),
    Sketcher.Constraint("DistanceX", 24, 3, 25, 3, Q("8.373912 mm")),
    Sketcher.Constraint("DistanceY", 22, 3, 25, 3, Q("37.334949 mm")),
    Sketcher.Constraint("DistanceY", 25, 3, 26, 3, Q("16.593311 mm")),
    Sketcher.Constraint("DistanceX", 36, 3, 37, 3, Q("72.505032 mm")),
])
pocket2 = body2.newObject("PartDesign::Pocket", "Pocket001")
pocket2.Profile = sketch4
pocket2.Type = "ThroughAll"
pocket2.Reversed = True

# Sketch on XZ plane
sketch5 = body2.newObject("Sketcher::SketchObject", "Sketch004")
sketch5.AttachmentSupport = (doc.getObject("XZ_Plane001"), [""])
sketch5.MapMode = "FlatFace"
sketch5.AttachmentOffset = App.Placement(V(0, 0, -20), App.Rotation())
sketch5.addGeometry([
    Part.LineSegment(V(-353.807, -353.807, 0), V(-353.807, 353.807, 0)),  # 0
    Part.LineSegment(V(-353.807, 353.807, 0), V(353.807, 353.807, 0)),  # 1
    Part.LineSegment(V(353.807, 353.807, 0), V(353.807, -353.807, 0)),  # 2
    Part.LineSegment(V(353.807, -353.807, 0), V(-353.807, -353.807, 0)),  # 3
    Part.LineSegment(V(-146.2376, -220.996752, 0), V(-157.049762, -231.808913, 0)),  # 4
    Part.ArcOfCircle(Part.Circle(V(0, 0, 0), V(0, 0, 1), 280), math.radians(-124.117508), math.radians(-113.249301)),  # 5
    Part.LineSegment(V(-110.52514, -257.262888, 0), V(-64.194904, -226.088454, 0)),  # 6
    Part.LineSegment(V(-64.194904, -226.088454, 0), V(-64.194904, -208.008879, 0)),  # 7
    Part.LineSegment(V(-64.194904, -208.008879, 0), V(-111.993839, -240.171564, 0)),  # 8
    Part.ArcOfCircle(Part.Circle(V(0, 0, 0), V(0, 0, 1), 265), math.radians(-123.493336), math.radians(-115)),  # 9
], False)
sketch5.addConstraint([
    Sketcher.Constraint("Coincident", 0, 2, 1, 1),
    Sketcher.Constraint("Coincident", 1, 2, 2, 1),
    Sketcher.Constraint("Coincident", 2, 2, 3, 1),
    Sketcher.Constraint("Coincident", 3, 2, 0, 1),
    Sketcher.Constraint("Coincident", 4, 2, 5, 1),
    Sketcher.Constraint("Coincident", 5, 2, 6, 1),
    Sketcher.Constraint("Coincident", 6, 2, 7, 1),
    Sketcher.Constraint("Coincident", 7, 2, 8, 1),
    Sketcher.Constraint("Coincident", 8, 2, 9, 2),
    Sketcher.Constraint("Coincident", 9, 1, 4, 1),
    Sketcher.Constraint("Vertical", 0),
    Sketcher.Constraint("Horizontal", 1),
    Sketcher.Constraint("Vertical", 2),
    Sketcher.Constraint("Horizontal", 3),
    Sketcher.Constraint("Vertical", 7),
    Sketcher.Constraint("Coincident", 5, 3, -1, 1),
    Sketcher.Constraint("Coincident", 9, 3, -1, 1),
    Sketcher.Constraint("Symmetric", 0, 2, 2, 2, -1, 1),
    Sketcher.Constraint("Parallel", 6, 8),
    Sketcher.Constraint("Equal", 3, 0),
    Sketcher.Constraint("Radius", 5, Q("280 mm")),
    Sketcher.Constraint("Radius", 9, Q("265 mm")),
    Sketcher.Constraint("Angle", 4, Q("-135 deg")),
    Sketcher.Constraint("DistanceX", 1, 1, 1, 2, Q("707.614 mm")),
    Sketcher.Constraint("DistanceX", 9, 1, -1, 1, Q("146.2376 mm")),
    Sketcher.Constraint("DistanceX", 8, 2, 5, 2, Q("1.468699 mm")),
    Sketcher.Constraint("DistanceY", 7, 1, 7, 2, Q("18.079575 mm")),
    Sketcher.Constraint("DistanceX", 5, 2, -1, 1, Q("110.52514 mm")),
    Sketcher.Constraint("DistanceY", 7, 2, -1, 1, Q("208.008879 mm")),
])
pocket3 = body2.newObject("PartDesign::Pocket", "Pocket002")
pocket3.Profile = sketch5
pocket3.Type = "ThroughAll"
pocket3.Reversed = True

# Sketch on an angled plane
sketch6 = body2.newObject("Sketcher::SketchObject", "Sketch005")
sketch6.Placement = App.Placement(V(76.336747, 0, -113.448715), App.Rotation(V(0.829665535, 0, 0.558260781), V(0, 1, 0), V(-0.558260781, 0, 0.829665535), "ZXY"))
sketch6.addGeometry([
    Part.LineSegment(V(-272.322917, 16, 0), V(-272.322917, 4, 0)),
    Part.LineSegment(V(-272.322917, 4, 0), V(-181.668669, 4, 0)),
    Part.LineSegment(V(-181.668669, 4, 0), V(-181.668669, 16, 0)),
    Part.LineSegment(V(-181.668669, 16, 0), V(-272.322917, 16, 0)),
], False)
sketch6.addConstraint([
    Sketcher.Constraint("Coincident", 0, 2, 1, 1),
    Sketcher.Constraint("Coincident", 1, 2, 2, 1),
    Sketcher.Constraint("Coincident", 2, 2, 3, 1),
    Sketcher.Constraint("Coincident", 3, 2, 0, 1),
    Sketcher.Constraint("Vertical", 0),
    Sketcher.Constraint("Horizontal", 1),
    Sketcher.Constraint("Vertical", 2),
    Sketcher.Constraint("Horizontal", 3),
    Sketcher.Constraint("DistanceY", 0, 2, 0, 1, Q("12 mm")),
    Sketcher.Constraint("DistanceY", -1, 1, 0, 2, Q("4 mm")),
    Sketcher.Constraint("DistanceX", 1, 1, 1, 2, Q("90.654248 mm")),
    Sketcher.Constraint("DistanceX", 1, 2, -1, 1, Q("181.668669 mm")),
])
pocket4 = body2.newObject("PartDesign::Pocket", "Pocket003")
pocket4.Profile = sketch6
pocket4.Type = "ThroughAll"
pocket4.Midplane = True
doc.recompute()

fillet = body2.newObject("PartDesign::Fillet", "Fillet")
fillet.Base = (pocket4, edges_at(pocket4, [(-64.195, 15, -208.009)]))
fillet.Radius = 3
doc.recompute()

fillet2 = body2.newObject("PartDesign::Fillet", "Fillet001")
fillet2.Base = (fillet, edges_at(fillet, [(-110.525, 18, -257.263), (-111.994, 18, -240.172)]))
fillet2.Radius = 10
doc.recompute()

fillet3 = body2.newObject("PartDesign::Fillet", "Fillet002")
fillet3.Base = (fillet2, edges_at(fillet2, [(-157.05, 18, -231.809), (-146.238, 18, -220.997), (-64.195, 15, -226.088)]))
fillet3.Radius = 5

# Sketch on XZ plane
sketch7 = body2.newObject("Sketcher::SketchObject", "Sketch006")
sketch7.AttachmentSupport = (doc.getObject("XZ_Plane001"), [""])
sketch7.MapMode = "FlatFace"
sketch7.AttachmentOffset = App.Placement(V(0, 0, -20), App.Rotation())
sketch7.addGeometry([
    Part.LineSegment(V(-75.139888, -233.453054, 0), V(-75.139888, -215.373479, 0)),  # 0
    Part.LineSegment(V(-75.139888, -215.373479, 0), V(-74.800413, -205.673441, 0)),  # 1
    Part.LineSegment(V(-74.800413, -205.673441, 0), V(-60.747402, -205.673441, 0)),  # 2
    Part.LineSegment(V(-60.747402, -205.673441, 0), V(-60.747402, -233.453054, 0)),  # 3
    Part.LineSegment(V(-60.747402, -233.453054, 0), V(-75.139888, -233.453054, 0)),  # 4
], False)
sketch7.addConstraint([
    Sketcher.Constraint("Coincident", 0, 2, 1, 1),
    Sketcher.Constraint("Coincident", 1, 2, 2, 1),
    Sketcher.Constraint("Coincident", 2, 2, 3, 1),
    Sketcher.Constraint("Coincident", 3, 2, 4, 1),
    Sketcher.Constraint("Coincident", 4, 2, 0, 1),
    Sketcher.Constraint("Vertical", 0),
    Sketcher.Constraint("Horizontal", 2),
    Sketcher.Constraint("Vertical", 3),
    Sketcher.Constraint("Horizontal", 4),
    Sketcher.Constraint("DistanceX", 2, 1, 2, 2, Q("14.053011 mm")),
    Sketcher.Constraint("DistanceX", 2, 2, -1, 1, Q("60.747402 mm")),
    Sketcher.Constraint("DistanceX", 4, 2, 4, 1, Q("14.392486 mm")),
    Sketcher.Constraint("DistanceY", 0, 1, 0, 2, Q("18.079575 mm")),
    Sketcher.Constraint("DistanceY", 3, 2, 3, 1, Q("27.779613 mm")),
    Sketcher.Constraint("DistanceY", 0, 2, -1, 1, Q("215.373479 mm")),
])
pocket5 = body2.newObject("PartDesign::Pocket", "Pocket004")
pocket5.Profile = sketch7
pocket5.Type = "ThroughAll"
pocket5.Reversed = True
doc.recompute()

fillet4 = body2.newObject("PartDesign::Fillet", "Fillet003")
fillet4.Base = (pocket5, edges_at(pocket5, [(-75.14, 18, -215.373), (-75.14, 18, -233.453)]))
fillet4.Radius = 3

doc.recompute()
